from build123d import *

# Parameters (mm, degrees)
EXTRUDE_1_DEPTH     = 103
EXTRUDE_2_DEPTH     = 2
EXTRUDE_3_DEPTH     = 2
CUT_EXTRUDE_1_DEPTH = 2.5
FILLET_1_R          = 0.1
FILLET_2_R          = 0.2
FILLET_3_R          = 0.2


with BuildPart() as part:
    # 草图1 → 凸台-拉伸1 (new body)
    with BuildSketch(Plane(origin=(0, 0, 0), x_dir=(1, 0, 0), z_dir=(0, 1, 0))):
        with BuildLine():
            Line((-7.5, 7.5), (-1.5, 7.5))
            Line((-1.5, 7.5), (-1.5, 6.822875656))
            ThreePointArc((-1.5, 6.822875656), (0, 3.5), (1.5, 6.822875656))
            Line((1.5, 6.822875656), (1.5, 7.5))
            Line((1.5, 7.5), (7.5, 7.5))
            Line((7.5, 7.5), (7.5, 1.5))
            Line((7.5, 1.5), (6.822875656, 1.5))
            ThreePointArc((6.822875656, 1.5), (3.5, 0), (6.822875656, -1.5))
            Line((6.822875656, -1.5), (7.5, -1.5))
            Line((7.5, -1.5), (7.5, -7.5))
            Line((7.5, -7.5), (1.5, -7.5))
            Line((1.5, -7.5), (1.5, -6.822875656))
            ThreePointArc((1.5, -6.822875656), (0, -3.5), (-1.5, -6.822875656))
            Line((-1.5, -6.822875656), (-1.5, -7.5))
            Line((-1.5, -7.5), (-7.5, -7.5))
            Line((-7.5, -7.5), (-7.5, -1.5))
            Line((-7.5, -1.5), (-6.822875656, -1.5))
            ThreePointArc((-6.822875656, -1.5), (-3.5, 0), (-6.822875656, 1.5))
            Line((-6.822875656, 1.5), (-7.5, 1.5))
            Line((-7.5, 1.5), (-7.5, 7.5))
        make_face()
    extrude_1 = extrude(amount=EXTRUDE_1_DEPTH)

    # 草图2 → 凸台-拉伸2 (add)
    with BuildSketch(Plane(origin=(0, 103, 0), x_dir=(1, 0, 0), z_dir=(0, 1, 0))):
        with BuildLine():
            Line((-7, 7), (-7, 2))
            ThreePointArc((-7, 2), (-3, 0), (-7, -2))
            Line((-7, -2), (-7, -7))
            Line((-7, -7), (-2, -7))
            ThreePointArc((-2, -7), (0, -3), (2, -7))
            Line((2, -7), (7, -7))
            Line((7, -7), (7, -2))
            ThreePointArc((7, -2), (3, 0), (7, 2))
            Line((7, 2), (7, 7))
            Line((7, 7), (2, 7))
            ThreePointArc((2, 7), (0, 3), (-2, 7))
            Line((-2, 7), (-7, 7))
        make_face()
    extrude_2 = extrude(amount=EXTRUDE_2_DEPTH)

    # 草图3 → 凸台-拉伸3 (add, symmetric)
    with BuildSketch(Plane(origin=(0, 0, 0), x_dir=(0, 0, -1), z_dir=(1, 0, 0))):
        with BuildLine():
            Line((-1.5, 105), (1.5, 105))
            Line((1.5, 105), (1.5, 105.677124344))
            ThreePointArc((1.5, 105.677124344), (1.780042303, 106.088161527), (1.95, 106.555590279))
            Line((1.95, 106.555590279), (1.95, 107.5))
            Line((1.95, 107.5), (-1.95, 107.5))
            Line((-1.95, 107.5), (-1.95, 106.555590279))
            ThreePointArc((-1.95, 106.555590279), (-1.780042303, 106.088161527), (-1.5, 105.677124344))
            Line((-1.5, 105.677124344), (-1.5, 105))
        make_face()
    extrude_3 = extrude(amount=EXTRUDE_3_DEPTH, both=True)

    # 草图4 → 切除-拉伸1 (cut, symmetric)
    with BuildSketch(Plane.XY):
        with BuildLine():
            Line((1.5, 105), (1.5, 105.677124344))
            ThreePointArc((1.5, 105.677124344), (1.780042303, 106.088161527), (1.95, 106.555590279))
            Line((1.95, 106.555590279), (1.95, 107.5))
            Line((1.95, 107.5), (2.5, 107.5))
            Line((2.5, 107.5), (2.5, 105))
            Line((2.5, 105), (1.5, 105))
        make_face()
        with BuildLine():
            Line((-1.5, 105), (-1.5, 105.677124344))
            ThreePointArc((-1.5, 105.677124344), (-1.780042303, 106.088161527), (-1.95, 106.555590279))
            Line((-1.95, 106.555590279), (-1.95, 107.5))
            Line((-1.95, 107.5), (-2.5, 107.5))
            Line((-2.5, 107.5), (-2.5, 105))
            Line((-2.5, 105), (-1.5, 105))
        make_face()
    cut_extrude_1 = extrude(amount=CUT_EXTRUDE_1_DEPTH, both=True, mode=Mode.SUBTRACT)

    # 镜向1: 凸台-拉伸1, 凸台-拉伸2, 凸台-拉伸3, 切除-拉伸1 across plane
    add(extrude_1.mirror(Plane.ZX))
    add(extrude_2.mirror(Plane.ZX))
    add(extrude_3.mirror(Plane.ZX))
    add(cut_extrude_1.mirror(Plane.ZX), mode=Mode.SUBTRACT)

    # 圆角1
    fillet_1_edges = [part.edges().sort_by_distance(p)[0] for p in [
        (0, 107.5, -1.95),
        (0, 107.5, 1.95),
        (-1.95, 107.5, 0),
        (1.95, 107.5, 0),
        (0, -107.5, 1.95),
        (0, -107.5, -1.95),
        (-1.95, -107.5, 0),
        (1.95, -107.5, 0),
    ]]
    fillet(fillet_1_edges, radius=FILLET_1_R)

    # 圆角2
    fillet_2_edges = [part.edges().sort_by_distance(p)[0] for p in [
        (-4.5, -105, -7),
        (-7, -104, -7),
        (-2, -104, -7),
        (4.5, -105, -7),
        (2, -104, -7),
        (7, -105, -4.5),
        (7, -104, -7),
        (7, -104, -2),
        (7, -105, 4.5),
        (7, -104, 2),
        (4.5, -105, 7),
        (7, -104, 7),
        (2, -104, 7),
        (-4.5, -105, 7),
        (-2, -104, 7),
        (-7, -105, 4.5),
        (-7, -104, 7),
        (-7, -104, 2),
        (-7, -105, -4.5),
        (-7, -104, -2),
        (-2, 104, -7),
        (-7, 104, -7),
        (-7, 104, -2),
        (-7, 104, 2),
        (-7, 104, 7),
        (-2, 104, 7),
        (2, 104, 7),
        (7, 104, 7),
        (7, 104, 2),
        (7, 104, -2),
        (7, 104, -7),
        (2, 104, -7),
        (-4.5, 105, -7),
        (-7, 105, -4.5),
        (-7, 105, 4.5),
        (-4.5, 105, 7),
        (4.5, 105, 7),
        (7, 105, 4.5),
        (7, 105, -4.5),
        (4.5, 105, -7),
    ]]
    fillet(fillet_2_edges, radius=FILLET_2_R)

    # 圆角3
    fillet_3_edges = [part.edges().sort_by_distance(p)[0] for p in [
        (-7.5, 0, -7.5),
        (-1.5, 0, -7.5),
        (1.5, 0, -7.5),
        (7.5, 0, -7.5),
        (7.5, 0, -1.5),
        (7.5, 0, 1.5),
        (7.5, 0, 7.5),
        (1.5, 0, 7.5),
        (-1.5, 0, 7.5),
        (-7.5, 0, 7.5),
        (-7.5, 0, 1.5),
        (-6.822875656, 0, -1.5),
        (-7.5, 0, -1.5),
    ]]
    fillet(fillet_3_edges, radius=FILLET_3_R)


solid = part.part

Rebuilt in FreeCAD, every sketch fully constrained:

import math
import FreeCAD as App
import Part
import Sketcher

V = App.Vector


def edges_at(feature, points):
    """Names of the edges that pass closest to the given points."""
    edges = feature.Shape.Edges
    near = lambda p: min(range(len(edges)), key=lambda i: edges[i].distToShape(Part.Vertex(*p))[0])
    return sorted({f"Edge{near(p) + 1}" for p in points})

doc = App.newDocument("Part")
body = doc.addObject("PartDesign::Body", "Body")

sketch1 = doc.addObject("Sketcher::SketchObject", "Sketch")
body.addObject(sketch1)
sketch1.AttachmentSupport = (doc.XZ_Plane, [""])
sketch1.MapMode = "FlatFace"
sketch1.addGeometry(Part.LineSegment(V(-1.5, -7.5, 0), V(-7.5, -7.5, 0)), False)
sketch1.addGeometry(Part.LineSegment(V(-7.5, -7.5, 0), V(-7.5, -1.5, 0)), False)
sketch1.addGeometry(Part.LineSegment(V(-7.5, -1.5, 0), V(-6.8, -1.5, 0)), False)
sketch1.addGeometry(Part.ArcOfCircle(Part.Circle(V(-5.5, 0, 0), V(0, 0, 1), 2), math.radians(-131), math.radians(131)), False)
sketch1.addGeometry(Part.LineSegment(V(-6.8, 1.5, 0), V(-7.5, 1.5, 0)), False)
sketch1.addGeometry(Part.LineSegment(V(-7.5, 1.5, 0), V(-7.5, 7.5, 0)), False)
sketch1.addGeometry(Part.LineSegment(V(-7.5, 7.5, 0), V(-1.5, 7.5, 0)), False)
sketch1.addGeometry(Part.LineSegment(V(-1.5, 7.5, 0), V(-1.5, 6.8, 0)), False)
sketch1.addGeometry(Part.ArcOfCircle(Part.Circle(V(0, 5.5, 0), V(0, 0, 1), 2), math.radians(139), math.radians(401)), False)
sketch1.addGeometry(Part.LineSegment(V(1.5, 6.8, 0), V(1.5, 7.5, 0)), False)
sketch1.addGeometry(Part.LineSegment(V(1.5, 7.5, 0), V(7.5, 7.5, 0)), False)
sketch1.addGeometry(Part.LineSegment(V(7.5, 7.5, 0), V(7.5, 1.5, 0)), False)
sketch1.addGeometry(Part.LineSegment(V(7.5, 1.5, 0), V(6.8, 1.5, 0)), False)
sketch1.addGeometry(Part.ArcOfCircle(Part.Circle(V(5.5, 0, 0), V(0, 0, 1), 2), math.radians(49), math.radians(311)), False)
sketch1.addGeometry(Part.LineSegment(V(6.8, -1.5, 0), V(7.5, -1.5, 0)), False)
sketch1.addGeometry(Part.LineSegment(V(7.5, -1.5, 0), V(7.5, -7.5, 0)), False)
sketch1.addGeometry(Part.LineSegment(V(7.5, -7.5, 0), V(1.5, -7.5, 0)), False)
sketch1.addGeometry(Part.LineSegment(V(1.5, -7.5, 0), V(1.5, -6.8, 0)), False)
sketch1.addGeometry(Part.ArcOfCircle(Part.Circle(V(0, -5.5, 0), V(0, 0, 1), 2), math.radians(-41), math.radians(221)), False)
sketch1.addGeometry(Part.LineSegment(V(-1.5, -6.8, 0), V(-1.5, -7.5, 0)), False)
sketch1.addConstraint(Sketcher.Constraint("Coincident", 0, 2, 1, 1))
sketch1.addConstraint(Sketcher.Constraint("Coincident", 1, 2, 2, 1))
sketch1.addConstraint(Sketcher.Constraint("Coincident", 2, 2, 3, 1))
sketch1.addConstraint(Sketcher.Constraint("Coincident", 3, 2, 4, 1))
sketch1.addConstraint(Sketcher.Constraint("Coincident", 4, 2, 5, 1))
sketch1.addConstraint(Sketcher.Constraint("Coincident", 5, 2, 6, 1))
sketch1.addConstraint(Sketcher.Constraint("Coincident", 6, 2, 7, 1))
sketch1.addConstraint(Sketcher.Constraint("Coincident", 7, 2, 8, 1))
sketch1.addConstraint(Sketcher.Constraint("Coincident", 8, 2, 9, 1))
sketch1.addConstraint(Sketcher.Constraint("Coincident", 9, 2, 10, 1))
sketch1.addConstraint(Sketcher.Constraint("Coincident", 10, 2, 11, 1))
sketch1.addConstraint(Sketcher.Constraint("Coincident", 11, 2, 12, 1))
sketch1.addConstraint(Sketcher.Constraint("Coincident", 12, 2, 13, 1))
sketch1.addConstraint(Sketcher.Constraint("Coincident", 13, 2, 14, 1))
sketch1.addConstraint(Sketcher.Constraint("Coincident", 14, 2, 15, 1))
sketch1.addConstraint(Sketcher.Constraint("Coincident", 15, 2, 16, 1))
sketch1.addConstraint(Sketcher.Constraint("Coincident", 16, 2, 17, 1))
sketch1.addConstraint(Sketcher.Constraint("Coincident", 17, 2, 18, 1))
sketch1.addConstraint(Sketcher.Constraint("Coincident", 18, 2, 19, 1))
sketch1.addConstraint(Sketcher.Constraint("Coincident", 19, 2, 0, 1))
sketch1.addConstraint(Sketcher.Constraint("Horizontal", 0))
sketch1.addConstraint(Sketcher.Constraint("Vertical", 1))
sketch1.addConstraint(Sketcher.Constraint("Horizontal", 2))
sketch1.addConstraint(Sketcher.Constraint("Horizontal", 4))
sketch1.addConstraint(Sketcher.Constraint("Vertical", 5))
sketch1.addConstraint(Sketcher.Constraint("Horizontal", 6))
sketch1.addConstraint(Sketcher.Constraint("Vertical", 7))
sketch1.addConstraint(Sketcher.Constraint("Vertical", 9))
sketch1.addConstraint(Sketcher.Constraint("Horizontal", 10))
sketch1.addConstraint(Sketcher.Constraint("Vertical", 11))
sketch1.addConstraint(Sketcher.Constraint("Horizontal", 12))
sketch1.addConstraint(Sketcher.Constraint("Horizontal", 14))
sketch1.addConstraint(Sketcher.Constraint("Vertical", 15))
sketch1.addConstraint(Sketcher.Constraint("Horizontal", 16))
sketch1.addConstraint(Sketcher.Constraint("Vertical", 17))
sketch1.addConstraint(Sketcher.Constraint("Vertical", 19))
sketch1.addConstraint(Sketcher.Constraint("Equal", 3, 8))
sketch1.addConstraint(Sketcher.Constraint("Equal", 8, 13))
sketch1.addConstraint(Sketcher.Constraint("Equal", 13, 18))
sketch1.addConstraint(Sketcher.Constraint("Symmetric", 3, 3, 13, 3, -1, 1))
sketch1.addConstraint(Sketcher.Constraint("Symmetric", 8, 3, 18, 3, -1, 1))
sketch1.addConstraint(Sketcher.Constraint("Symmetric", 0, 2, 10, 2, -1, 1))
sketch1.addConstraint(Sketcher.Constraint("Symmetric", 4, 2, 14, 2, -1, 1))
sketch1.addConstraint(Sketcher.Constraint("Symmetric", 6, 2, 16, 2, -1, 1))
sketch1.addConstraint(Sketcher.Constraint("Symmetric", 7, 2, 8, 2, -2))
sketch1.addConstraint(Sketcher.Constraint("Symmetric", 5, 2, 10, 2, -2))
sketch1.addConstraint(Sketcher.Constraint("Symmetric", 3, 2, 12, 2, -2))
sketch1.addConstraint(Sketcher.Constraint("Horizontal", 2, 2, 13, 2))
sketch1.addConstraint(Sketcher.Constraint("Horizontal", 17, 2, 18, 2))
sketch1.addConstraint(Sketcher.Constraint("Equal", 16, 1))
sketch1.addConstraint(Sketcher.Constraint("Equal", 14, 7))
sketch1.addConstraint(Sketcher.Constraint("Radius", 3, 2.0))
sketch1.addConstraint(Sketcher.Constraint("DistanceX", 0, 2, 0, 1, 6.0))
sketch1.addConstraint(Sketcher.Constraint("DistanceX", 3, 3, 13, 3, 11.0))
sketch1.addConstraint(Sketcher.Constraint("DistanceY", 18, 3, 8, 3, 11.0))
sketch1.addConstraint(Sketcher.Constraint("DistanceX", 0, 2, 3, 3, 2.0))
pad1 = doc.addObject("PartDesign::Pad", "Pad")
body.addObject(pad1)
pad1.Profile = sketch1
pad1.Length = 103
pad1.Reversed = True

sketch2 = doc.addObject("Sketcher::SketchObject", "Sketch001")
body.addObject(sketch2)
sketch2.AttachmentSupport = (doc.XZ_Plane, [""])
sketch2.MapMode = "FlatFace"
sketch2.AttachmentOffset = App.Placement(V(0, 0, -103), App.Rotation())
sketch2.addGeometry(Part.LineSegment(V(-7, -7, 0), V(-7, -2, 0)), False)
sketch2.addGeometry(Part.ArcOfCircle(Part.Circle(V(-5.5, 0, 0), V(0, 0, 1), 2.5), math.radians(-127), math.radians(127)), False)
sketch2.addGeometry(Part.LineSegment(V(-7, 2, 0), V(-7, 7, 0)), False)
sketch2.addGeometry(Part.LineSegment(V(-7, 7, 0), V(-2, 7, 0)), False)
sketch2.addGeometry(Part.ArcOfCircle(Part.Circle(V(0, 5.5, 0), V(0, 0, 1), 2.5), math.radians(143), math.radians(397)), False)
sketch2.addGeometry(Part.LineSegment(V(2, 7, 0), V(7, 7, 0)), False)
sketch2.addGeometry(Part.LineSegment(V(7, 7, 0), V(7, 2, 0)), False)
sketch2.addGeometry(Part.ArcOfCircle(Part.Circle(V(5.5, 0, 0), V(0, 0, 1), 2.5), math.radians(53), math.radians(307)), False)
sketch2.addGeometry(Part.LineSegment(V(7, -2, 0), V(7, -7, 0)), False)
sketch2.addGeometry(Part.LineSegment(V(7, -7, 0), V(2, -7, 0)), False)
sketch2.addGeometry(Part.ArcOfCircle(Part.Circle(V(0, -5.5, 0), V(0, 0, 1), 2.5), math.radians(-37), math.radians(217)), False)
sketch2.addGeometry(Part.LineSegment(V(-2, -7, 0), V(-7, -7, 0)), False)
sketch2.addConstraint(Sketcher.Constraint("Coincident", 0, 2, 1, 1))
sketch2.addConstraint(Sketcher.Constraint("Coincident", 1, 2, 2, 1))
sketch2.addConstraint(Sketcher.Constraint("Coincident", 2, 2, 3, 1))
sketch2.addConstraint(Sketcher.Constraint("Coincident", 3, 2, 4, 1))
sketch2.addConstraint(Sketcher.Constraint("Coincident", 4, 2, 5, 1))
sketch2.addConstraint(Sketcher.Constraint("Coincident", 5, 2, 6, 1))
sketch2.addConstraint(Sketcher.Constraint("Coincident", 6, 2, 7, 1))
sketch2.addConstraint(Sketcher.Constraint("Coincident", 7, 2, 8, 1))
sketch2.addConstraint(Sketcher.Constraint("Coincident", 8, 2, 9, 1))
sketch2.addConstraint(Sketcher.Constraint("Coincident", 9, 2, 10, 1))
sketch2.addConstraint(Sketcher.Constraint("Coincident", 10, 2, 11, 1))
sketch2.addConstraint(Sketcher.Constraint("Coincident", 11, 2, 0, 1))
sketch2.addConstraint(Sketcher.Constraint("Vertical", 0))
sketch2.addConstraint(Sketcher.Constraint("Vertical", 2))
sketch2.addConstraint(Sketcher.Constraint("Horizontal", 3))
sketch2.addConstraint(Sketcher.Constraint("Horizontal", 5))
sketch2.addConstraint(Sketcher.Constraint("Vertical", 6))
sketch2.addConstraint(Sketcher.Constraint("Vertical", 8))
sketch2.addConstraint(Sketcher.Constraint("Horizontal", 9))
sketch2.addConstraint(Sketcher.Constraint("Horizontal", 11))
sketch2.addConstraint(Sketcher.Constraint("Equal", 1, 4))
sketch2.addConstraint(Sketcher.Constraint("Equal", 4, 7))
sketch2.addConstraint(Sketcher.Constraint("Equal", 7, 10))
sketch2.addConstraint(Sketcher.Constraint("Symmetric", 1, 3, 7, 3, -1, 1))
sketch2.addConstraint(Sketcher.Constraint("Symmetric", 4, 3, 10, 3, -1, 1))
sketch2.addConstraint(Sketcher.Constraint("Symmetric", 2, 2, 8, 2, -1, 1))
sketch2.addConstraint(Sketcher.Constraint("Symmetric", 5, 2, 11, 2, -1, 1))
sketch2.addConstraint(Sketcher.Constraint("Symmetric", 3, 2, 4, 2, -2))
sketch2.addConstraint(Sketcher.Constraint("Symmetric", 1, 2, 6, 2, -2))
sketch2.addConstraint(Sketcher.Constraint("Equal", 11, 0))
sketch2.addConstraint(Sketcher.Constraint("Radius", 1, 2.5))
sketch2.addConstraint(Sketcher.Constraint("DistanceX", 3, 1, 3, 2, 5.0))
sketch2.addConstraint(Sketcher.Constraint("DistanceX", 0, 2, -1, 1, 7.0))
sketch2.addConstraint(Sketcher.Constraint("DistanceY", 0, 2, -1, 1, 2.0))
pad2 = doc.addObject("PartDesign::Pad", "Pad001")
body.addObject(pad2)
pad2.Profile = sketch2
pad2.Length = 2
pad2.Reversed = True

sketch3 = doc.addObject("Sketcher::SketchObject", "Sketch002")
body.addObject(sketch3)
sketch3.AttachmentSupport = (doc.YZ_Plane, [""])
sketch3.MapMode = "FlatFace"
sketch3.addGeometry(Part.LineSegment(V(105, 1.5, 0), V(105, -1.5, 0)), False)
sketch3.addGeometry(Part.LineSegment(V(105, -1.5, 0), V(105.7, -1.5, 0)), False)
sketch3.addGeometry(Part.ArcOfCircle(Part.Circle(V(107, 0, 0), V(0, 0, 1), 2), math.radians(-131), math.radians(-103)), False)
sketch3.addGeometry(Part.LineSegment(V(106.6, -1.9, 0), V(107.5, -1.9, 0)), False)
sketch3.addGeometry(Part.LineSegment(V(107.5, -1.9, 0), V(107.5, 1.9, 0)), False)
sketch3.addGeometry(Part.LineSegment(V(107.5, 1.9, 0), V(106.6, 1.9, 0)), False)
sketch3.addGeometry(Part.ArcOfCircle(Part.Circle(V(107, 0, 0), V(0, 0, 1), 2), math.radians(103), math.radians(131)), False)
sketch3.addGeometry(Part.LineSegment(V(105.7, 1.5, 0), V(105, 1.5, 0)), False)
sketch3.addConstraint(Sketcher.Constraint("Coincident", 0, 2, 1, 1))
sketch3.addConstraint(Sketcher.Constraint("Coincident", 1, 2, 2, 1))
sketch3.addConstraint(Sketcher.Constraint("Coincident", 2, 2, 3, 1))
sketch3.addConstraint(Sketcher.Constraint("Coincident", 3, 2, 4, 1))
sketch3.addConstraint(Sketcher.Constraint("Coincident", 4, 2, 5, 1))
sketch3.addConstraint(Sketcher.Constraint("Coincident", 5, 2, 6, 1))
sketch3.addConstraint(Sketcher.Constraint("Coincident", 6, 2, 7, 1))
sketch3.addConstraint(Sketcher.Constraint("Coincident", 7, 2, 0, 1))
sketch3.addConstraint(Sketcher.Constraint("Vertical", 0))
sketch3.addConstraint(Sketcher.Constraint("Horizontal", 1))
sketch3.addConstraint(Sketcher.Constraint("Horizontal", 3))
sketch3.addConstraint(Sketcher.Constraint("Vertical", 4))
sketch3.addConstraint(Sketcher.Constraint("Horizontal", 5))
sketch3.addConstraint(Sketcher.Constraint("Horizontal", 7))
sketch3.addConstraint(Sketcher.Constraint("Coincident", 6, 3, 2, 3))
sketch3.addConstraint(Sketcher.Constraint("Equal", 2, 6))
sketch3.addConstraint(Sketcher.Constraint("Symmetric", 2, 2, 5, 2, -1))
sketch3.addConstraint(Sketcher.Constraint("Vertical", 1, 2, 6, 2))
sketch3.addConstraint(Sketcher.Constraint("Radius", 2, 2.0))
sketch3.addConstraint(Sketcher.Constraint("DistanceY", 0, 2, 0, 1, 3.0))
sketch3.addConstraint(Sketcher.Constraint("DistanceY", 4, 1, 4, 2, 3.9))
sketch3.addConstraint(Sketcher.Constraint("DistanceX", -1, 1, 2, 3, 107.0))
sketch3.addConstraint(Sketcher.Constraint("DistanceX", -1, 1, 0, 2, 105.0))
sketch3.addConstraint(Sketcher.Constraint("DistanceX", -1, 1, 3, 2, 107.5))
pad3 = doc.addObject("PartDesign::Pad", "Pad002")
body.addObject(pad3)
pad3.Profile = sketch3
pad3.Length = 4
pad3.Midplane = True

sketch4 = doc.addObject("Sketcher::SketchObject", "Sketch003")
body.addObject(sketch4)
sketch4.AttachmentSupport = (doc.XY_Plane, [""])
sketch4.MapMode = "FlatFace"
sketch4.addGeometry(Part.LineSegment(V(1.5, 105.7, 0), V(1.5, 105, 0)), False)
sketch4.addGeometry(Part.LineSegment(V(1.5, 105, 0), V(2.5, 105, 0)), False)
sketch4.addGeometry(Part.LineSegment(V(2.5, 105, 0), V(2.5, 107.5, 0)), False)
sketch4.addGeometry(Part.LineSegment(V(2.5, 107.5, 0), V(1.9, 107.5, 0)), False)
sketch4.addGeometry(Part.LineSegment(V(1.9, 107.5, 0), V(1.9, 106.6, 0)), False)
sketch4.addGeometry(Part.ArcOfCircle(Part.Circle(V(0, 107, 0), V(0, 0, 1), 2), math.radians(-41), math.radians(-13)), False)
sketch4.addGeometry(Part.LineSegment(V(-1.5, 105, 0), V(-1.5, 105.7, 0)), False)
sketch4.addGeometry(Part.ArcOfCircle(Part.Circle(V(0, 107, 0), V(0, 0, 1), 2), math.radians(-167), math.radians(-139)), False)
sketch4.addGeometry(Part.LineSegment(V(-1.9, 106.6, 0), V(-1.9, 107.5, 0)), False)
sketch4.addGeometry(Part.LineSegment(V(-1.9, 107.5, 0), V(-2.5, 107.5, 0)), False)
sketch4.addGeometry(Part.LineSegment(V(-2.5, 107.5, 0), V(-2.5, 105, 0)), False)
sketch4.addGeometry(Part.LineSegment(V(-2.5, 105, 0), V(-1.5, 105, 0)), False)
sketch4.addConstraint(Sketcher.Constraint("Coincident", 0, 2, 1, 1))
sketch4.addConstraint(Sketcher.Constraint("Coincident", 1, 2, 2, 1))
sketch4.addConstraint(Sketcher.Constraint("Coincident", 2, 2, 3, 1))
sketch4.addConstraint(Sketcher.Constraint("Coincident", 3, 2, 4, 1))
sketch4.addConstraint(Sketcher.Constraint("Coincident", 4, 2, 5, 2))
sketch4.addConstraint(Sketcher.Constraint("Coincident", 5, 1, 0, 1))
sketch4.addConstraint(Sketcher.Constraint("Coincident", 6, 2, 7, 2))
sketch4.addConstraint(Sketcher.Constraint("Coincident", 7, 1, 8, 1))
sketch4.addConstraint(Sketcher.Constraint("Coincident", 8, 2, 9, 1))
sketch4.addConstraint(Sketcher.Constraint("Coincident", 9, 2, 10, 1))
sketch4.addConstraint(Sketcher.Constraint("Coincident", 10, 2, 11, 1))
sketch4.addConstraint(Sketcher.Constraint("Coincident", 11, 2, 6, 1))
sketch4.addConstraint(Sketcher.Constraint("Vertical", 0))
sketch4.addConstraint(Sketcher.Constraint("Horizontal", 1))
sketch4.addConstraint(Sketcher.Constraint("Vertical", 2))
sketch4.addConstraint(Sketcher.Constraint("Horizontal", 3))
sketch4.addConstraint(Sketcher.Constraint("Vertical", 4))
sketch4.addConstraint(Sketcher.Constraint("Vertical", 6))
sketch4.addConstraint(Sketcher.Constraint("Vertical", 8))
sketch4.addConstraint(Sketcher.Constraint("Horizontal", 9))
sketch4.addConstraint(Sketcher.Constraint("Vertical", 10))
sketch4.addConstraint(Sketcher.Constraint("Horizontal", 11))
sketch4.addConstraint(Sketcher.Constraint("Coincident", 7, 3, 5, 3))
sketch4.addConstraint(Sketcher.Constraint("Equal", 5, 7))
sketch4.addConstraint(Sketcher.Constraint("Symmetric", 5, 1, 6, 2, -2))
sketch4.addConstraint(Sketcher.Constraint("Symmetric", 3, 2, 8, 2, -2))
sketch4.addConstraint(Sketcher.Constraint("Symmetric", 1, 2, 10, 2, -2))
sketch4.addConstraint(Sketcher.Constraint("Radius", 5, 2.0))
sketch4.addConstraint(Sketcher.Constraint("DistanceX", 1, 1, 1, 2, 1.0))
sketch4.addConstraint(Sketcher.Constraint("DistanceY", 2, 1, 2, 2, 2.5))
sketch4.addConstraint(Sketcher.Constraint("DistanceY", -1, 1, 5, 3, 107.0))
sketch4.addConstraint(Sketcher.Constraint("DistanceY", -1, 1, 0, 2, 105.0))
sketch4.addConstraint(Sketcher.Constraint("DistanceX", 6, 2, 5, 1, 3.0))
sketch4.addConstraint(Sketcher.Constraint("DistanceX", 3, 2, 3, 1, 0.55))
pocket1 = doc.addObject("PartDesign::Pocket", "Pocket")
body.addObject(pocket1)
pocket1.Profile = sketch4
pocket1.Length = 5
pocket1.Midplane = True
doc.recompute()

mirrored = doc.addObject("PartDesign::Mirrored", "Mirrored")
body.addObject(mirrored)
mirrored.Originals = [pad1, pad2, pad3, pocket1]
mirrored.MirrorPlane = (doc.XZ_Plane, [""])
body.Tip = mirrored
doc.recompute()

fillet = doc.addObject("PartDesign::Fillet", "Fillet")
body.addObject(fillet)
fillet.Base = (mirrored, edges_at(mirrored, [
    (0, 107.5, -1.95),
    (0, 107.5, 1.95),
    (-1.95, 107.5, 0),
    (1.95, 107.5, 0),
    (0, -107.5, 1.95),
    (0, -107.5, -1.95),
    (-1.95, -107.5, 0),
    (1.95, -107.5, 0),
]))
fillet.Radius = 0.1
doc.recompute()

fillet2 = doc.addObject("PartDesign::Fillet", "Fillet001")
body.addObject(fillet2)
fillet2.Base = (fillet, edges_at(fillet, [
    (-4.5, -105, -7),
    (-7, -104, -7),
    (-2, -104, -7),
    (4.5, -105, -7),
    (2, -104, -7),
    (7, -105, -4.5),
    (7, -104, -7),
    (7, -104, -2),
    (7, -105, 4.5),
    (7, -104, 2),
    (4.5, -105, 7),
    (7, -104, 7),
    (2, -104, 7),
    (-4.5, -105, 7),
    (-2, -104, 7),
    (-7, -105, 4.5),
    (-7, -104, 7),
    (-7, -104, 2),
    (-7, -105, -4.5),
    (-7, -104, -2),
    (-2, 104, -7),
    (-7, 104, -7),
    (-7, 104, -2),
    (-7, 104, 2),
    (-7, 104, 7),
    (-2, 104, 7),
    (2, 104, 7),
    (7, 104, 7),
    (7, 104, 2),
    (7, 104, -2),
    (7, 104, -7),
    (2, 104, -7),
    (-4.5, 105, -7),
    (-7, 105, -4.5),
    (-7, 105, 4.5),
    (-4.5, 105, 7),
    (4.5, 105, 7),
    (7, 105, 4.5),
    (7, 105, -4.5),
    (4.5, 105, -7),
]))
fillet2.Radius = 0.2
doc.recompute()

fillet3 = doc.addObject("PartDesign::Fillet", "Fillet002")
body.addObject(fillet3)
fillet3.Base = (fillet2, edges_at(fillet2, [
    (-7.5, 0, -7.5),
    (-1.5, 0, -7.5),
    (1.5, 0, -7.5),
    (7.5, 0, -7.5),
    (7.5, 0, -1.5),
    (7.5, 0, 1.5),
    (7.5, 0, 7.5),
    (1.5, 0, 7.5),
    (-1.5, 0, 7.5),
    (-7.5, 0, 7.5),
    (-7.5, 0, 1.5),
    (-6.823, 0, -1.5),
    (-7.5, 0, -1.5),
]))
fillet3.Radius = 0.2

doc.recompute()
